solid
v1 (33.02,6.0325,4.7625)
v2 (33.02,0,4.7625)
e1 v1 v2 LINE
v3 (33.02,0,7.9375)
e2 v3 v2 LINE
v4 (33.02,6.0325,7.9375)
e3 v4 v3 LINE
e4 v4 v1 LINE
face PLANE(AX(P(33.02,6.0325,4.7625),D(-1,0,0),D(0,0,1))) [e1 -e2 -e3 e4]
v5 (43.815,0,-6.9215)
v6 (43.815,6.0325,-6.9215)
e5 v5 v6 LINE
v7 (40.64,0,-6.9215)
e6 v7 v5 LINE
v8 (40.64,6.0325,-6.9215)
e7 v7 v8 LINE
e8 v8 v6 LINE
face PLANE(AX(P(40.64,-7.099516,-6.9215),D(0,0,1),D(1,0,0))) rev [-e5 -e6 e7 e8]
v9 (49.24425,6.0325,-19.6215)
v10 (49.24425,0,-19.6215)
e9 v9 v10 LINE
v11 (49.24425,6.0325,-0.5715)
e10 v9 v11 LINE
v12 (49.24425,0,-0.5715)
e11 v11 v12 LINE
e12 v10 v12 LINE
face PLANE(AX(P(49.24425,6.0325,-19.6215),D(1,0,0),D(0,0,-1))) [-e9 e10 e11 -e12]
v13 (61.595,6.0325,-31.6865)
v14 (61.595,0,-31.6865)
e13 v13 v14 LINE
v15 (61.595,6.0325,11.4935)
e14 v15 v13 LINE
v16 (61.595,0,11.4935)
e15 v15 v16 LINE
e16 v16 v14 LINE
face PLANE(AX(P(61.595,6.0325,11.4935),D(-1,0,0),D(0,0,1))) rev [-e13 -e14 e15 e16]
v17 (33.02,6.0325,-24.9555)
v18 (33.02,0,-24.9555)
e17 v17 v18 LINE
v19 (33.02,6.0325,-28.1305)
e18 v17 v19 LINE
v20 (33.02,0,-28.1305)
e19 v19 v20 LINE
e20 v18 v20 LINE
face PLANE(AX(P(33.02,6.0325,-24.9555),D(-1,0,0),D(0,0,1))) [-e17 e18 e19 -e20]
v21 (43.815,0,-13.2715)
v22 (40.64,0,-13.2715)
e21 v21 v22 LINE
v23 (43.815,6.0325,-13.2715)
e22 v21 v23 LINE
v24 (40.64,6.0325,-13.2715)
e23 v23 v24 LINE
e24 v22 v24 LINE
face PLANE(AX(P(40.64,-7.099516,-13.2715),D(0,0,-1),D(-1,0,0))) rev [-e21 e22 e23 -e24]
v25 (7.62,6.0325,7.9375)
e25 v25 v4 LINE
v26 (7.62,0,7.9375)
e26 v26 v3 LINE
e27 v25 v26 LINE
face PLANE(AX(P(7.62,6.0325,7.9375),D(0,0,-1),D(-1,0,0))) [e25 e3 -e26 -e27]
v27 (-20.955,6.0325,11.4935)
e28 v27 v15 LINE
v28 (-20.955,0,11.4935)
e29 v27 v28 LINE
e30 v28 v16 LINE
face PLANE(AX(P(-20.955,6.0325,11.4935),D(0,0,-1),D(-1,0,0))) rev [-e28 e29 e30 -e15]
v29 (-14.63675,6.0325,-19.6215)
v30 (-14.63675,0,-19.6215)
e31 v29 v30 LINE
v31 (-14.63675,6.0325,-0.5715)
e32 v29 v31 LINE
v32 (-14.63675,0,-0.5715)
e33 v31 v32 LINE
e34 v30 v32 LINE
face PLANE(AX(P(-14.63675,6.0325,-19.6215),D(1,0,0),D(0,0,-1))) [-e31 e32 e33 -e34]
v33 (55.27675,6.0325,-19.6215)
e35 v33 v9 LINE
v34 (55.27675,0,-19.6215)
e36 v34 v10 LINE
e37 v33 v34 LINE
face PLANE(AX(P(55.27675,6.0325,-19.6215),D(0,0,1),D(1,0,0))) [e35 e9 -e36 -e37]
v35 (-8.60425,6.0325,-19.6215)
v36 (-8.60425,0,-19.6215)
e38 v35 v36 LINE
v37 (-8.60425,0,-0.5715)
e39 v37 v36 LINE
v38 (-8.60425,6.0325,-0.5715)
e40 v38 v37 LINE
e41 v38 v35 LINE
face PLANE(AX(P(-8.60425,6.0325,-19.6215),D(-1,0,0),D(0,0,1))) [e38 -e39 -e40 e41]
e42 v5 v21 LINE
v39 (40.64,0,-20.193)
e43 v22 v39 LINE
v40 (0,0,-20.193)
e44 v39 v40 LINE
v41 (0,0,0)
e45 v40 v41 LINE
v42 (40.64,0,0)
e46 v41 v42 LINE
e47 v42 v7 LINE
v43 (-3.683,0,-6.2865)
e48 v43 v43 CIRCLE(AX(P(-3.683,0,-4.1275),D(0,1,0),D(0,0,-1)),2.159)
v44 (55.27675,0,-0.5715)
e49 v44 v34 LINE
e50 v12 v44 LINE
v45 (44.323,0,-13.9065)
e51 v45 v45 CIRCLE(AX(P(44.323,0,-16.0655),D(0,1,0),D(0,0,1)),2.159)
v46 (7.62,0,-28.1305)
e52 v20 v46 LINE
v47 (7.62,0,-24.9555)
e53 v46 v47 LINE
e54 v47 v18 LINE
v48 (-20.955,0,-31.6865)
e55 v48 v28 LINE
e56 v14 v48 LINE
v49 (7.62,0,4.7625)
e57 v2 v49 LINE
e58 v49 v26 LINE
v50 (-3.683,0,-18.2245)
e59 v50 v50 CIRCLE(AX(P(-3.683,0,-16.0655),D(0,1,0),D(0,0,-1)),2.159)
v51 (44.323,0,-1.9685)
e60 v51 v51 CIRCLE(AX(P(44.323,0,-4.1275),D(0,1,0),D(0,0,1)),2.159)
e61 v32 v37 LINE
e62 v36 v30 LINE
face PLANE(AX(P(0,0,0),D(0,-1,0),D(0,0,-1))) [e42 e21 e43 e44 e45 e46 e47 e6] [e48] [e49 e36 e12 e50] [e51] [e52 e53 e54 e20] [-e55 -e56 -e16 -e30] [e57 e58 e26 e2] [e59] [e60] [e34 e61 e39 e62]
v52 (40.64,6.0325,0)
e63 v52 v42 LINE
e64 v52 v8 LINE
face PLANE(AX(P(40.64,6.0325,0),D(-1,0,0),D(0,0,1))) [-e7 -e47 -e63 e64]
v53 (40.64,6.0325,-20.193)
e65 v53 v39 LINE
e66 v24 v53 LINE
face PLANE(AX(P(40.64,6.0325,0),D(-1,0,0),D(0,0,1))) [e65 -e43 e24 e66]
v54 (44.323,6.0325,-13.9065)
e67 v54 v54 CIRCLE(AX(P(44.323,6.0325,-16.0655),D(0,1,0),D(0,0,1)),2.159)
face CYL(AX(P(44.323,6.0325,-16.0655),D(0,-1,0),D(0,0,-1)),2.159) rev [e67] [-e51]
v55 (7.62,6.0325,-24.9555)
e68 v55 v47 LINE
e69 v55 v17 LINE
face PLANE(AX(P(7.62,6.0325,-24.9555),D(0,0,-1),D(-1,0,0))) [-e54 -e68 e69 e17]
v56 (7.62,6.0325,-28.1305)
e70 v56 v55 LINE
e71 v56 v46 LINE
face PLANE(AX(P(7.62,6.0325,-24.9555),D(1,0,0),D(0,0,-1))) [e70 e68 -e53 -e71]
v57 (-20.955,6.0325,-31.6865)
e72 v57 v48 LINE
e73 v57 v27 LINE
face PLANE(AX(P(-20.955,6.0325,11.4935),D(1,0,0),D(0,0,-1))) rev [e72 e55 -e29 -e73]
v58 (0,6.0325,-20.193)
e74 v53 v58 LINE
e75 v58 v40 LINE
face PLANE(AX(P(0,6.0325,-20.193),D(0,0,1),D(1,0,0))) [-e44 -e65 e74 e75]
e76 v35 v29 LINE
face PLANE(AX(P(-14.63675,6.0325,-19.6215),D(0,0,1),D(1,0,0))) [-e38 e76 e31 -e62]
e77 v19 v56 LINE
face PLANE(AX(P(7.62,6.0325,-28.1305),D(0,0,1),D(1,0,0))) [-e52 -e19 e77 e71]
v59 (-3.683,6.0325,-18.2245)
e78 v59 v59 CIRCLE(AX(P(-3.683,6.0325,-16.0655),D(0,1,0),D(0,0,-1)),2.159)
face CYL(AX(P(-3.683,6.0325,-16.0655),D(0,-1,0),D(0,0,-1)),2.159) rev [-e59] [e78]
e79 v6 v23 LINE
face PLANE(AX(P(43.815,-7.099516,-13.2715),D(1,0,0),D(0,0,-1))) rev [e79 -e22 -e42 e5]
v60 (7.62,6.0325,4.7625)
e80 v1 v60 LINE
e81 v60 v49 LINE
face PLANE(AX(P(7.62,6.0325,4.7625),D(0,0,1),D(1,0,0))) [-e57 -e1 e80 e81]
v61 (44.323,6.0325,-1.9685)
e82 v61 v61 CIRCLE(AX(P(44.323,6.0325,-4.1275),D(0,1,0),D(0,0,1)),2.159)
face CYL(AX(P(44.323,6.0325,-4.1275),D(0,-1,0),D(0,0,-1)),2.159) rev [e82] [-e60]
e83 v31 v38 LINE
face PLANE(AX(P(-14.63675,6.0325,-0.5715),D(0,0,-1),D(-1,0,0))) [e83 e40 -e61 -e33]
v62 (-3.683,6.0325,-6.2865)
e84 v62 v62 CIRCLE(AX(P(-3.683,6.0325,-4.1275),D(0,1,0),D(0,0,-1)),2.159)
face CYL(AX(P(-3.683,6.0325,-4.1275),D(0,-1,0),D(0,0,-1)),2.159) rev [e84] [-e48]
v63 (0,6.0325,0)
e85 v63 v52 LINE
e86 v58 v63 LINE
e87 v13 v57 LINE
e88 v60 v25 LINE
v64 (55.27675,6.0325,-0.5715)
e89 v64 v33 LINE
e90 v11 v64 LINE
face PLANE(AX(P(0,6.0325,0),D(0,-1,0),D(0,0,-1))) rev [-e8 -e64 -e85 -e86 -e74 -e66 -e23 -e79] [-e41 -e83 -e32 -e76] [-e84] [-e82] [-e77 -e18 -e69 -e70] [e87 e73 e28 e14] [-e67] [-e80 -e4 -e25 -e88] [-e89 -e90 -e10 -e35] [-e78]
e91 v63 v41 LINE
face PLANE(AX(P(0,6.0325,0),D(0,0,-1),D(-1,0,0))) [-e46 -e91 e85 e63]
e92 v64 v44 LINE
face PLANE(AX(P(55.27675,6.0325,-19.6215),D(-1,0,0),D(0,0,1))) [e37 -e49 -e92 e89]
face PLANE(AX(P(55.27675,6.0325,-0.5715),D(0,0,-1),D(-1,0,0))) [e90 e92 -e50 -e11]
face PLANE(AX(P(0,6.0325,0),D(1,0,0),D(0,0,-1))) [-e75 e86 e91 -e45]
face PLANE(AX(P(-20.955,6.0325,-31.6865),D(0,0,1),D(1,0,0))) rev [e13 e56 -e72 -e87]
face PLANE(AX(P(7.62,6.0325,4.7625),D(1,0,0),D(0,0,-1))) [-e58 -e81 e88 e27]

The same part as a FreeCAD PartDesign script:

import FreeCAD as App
import Part
import Sketcher

V = App.Vector
Q = App.Units.Quantity

doc = App.newDocument("Part")
params = doc.addObject("Spreadsheet::Sheet", "Params")
for row, (alias, value) in enumerate([
    ("sketch1_diameter", "0.17 in"),
    ("sketch1_width", "1 in"),
    ("sketch1_width2", "1.6 in"),
    ("sketch1_height", "1.7 in"),
    ("sketch1_width3", "3.25 in"),
    ("pad1_length", "0.2375 in"),
    ("sketch2_height", "0.25 in"),
    ("sketch2_width", "0.125 in"),
    ("pocket1_length", "0.2375 in"),
], start=1):
    params.set(f"A{row}", alias)
    params.set(f"B{row}", "=" + value)
    params.setAlias(f"B{row}", alias)

body = doc.addObject("PartDesign::Body", "Body")

# Sketch on XZ plane
sketch1 = body.newObject("Sketcher::SketchObject", "Sketch")
sketch1.AttachmentSupport = (doc.getObject("XZ_Plane"), [""])
sketch1.MapMode = "FlatFace"
sketch1.addGeometry([
    Part.LineSegment(V(-21, -31.7, 0), V(-21, 11.5, 0)),  # 0
    Part.LineSegment(V(-21, 11.5, 0), V(61.6, 11.5, 0)),  # 1
    Part.LineSegment(V(61.6, 11.5, 0), V(61.6, -31.7, 0)),  # 2
    Part.LineSegment(V(61.6, -31.7, 0), V(-21, -31.7, 0)),  # 3
    Part.Circle(V(-3.7, -4.1, 0), V(0, 0, 1), 2.2),  # 4
    Part.LineSegment(V(33, 7.9, 0), V(7.6, 7.9, 0)),  # 5
    Part.LineSegment(V(7.6, 7.9, 0), V(7.6, 4.8, 0)),  # 6
    Part.LineSegment(V(7.6, 4.8, 0), V(33, 4.8, 0)),  # 7
    Part.LineSegment(V(33, 4.8, 0), V(33, 7.9, 0)),  # 8
    Part.Circle(V(44.3, -4.1, 0), V(0, 0, 1), 2.2),  # 9
    Part.LineSegment(V(-8.6, -0.6, 0), V(-14.6, -0.6, 0)),  # 10
    Part.LineSegment(V(-14.6, -0.6, 0), V(-14.6, -19.6, 0)),  # 11
    Part.LineSegment(V(-14.6, -19.6, 0), V(-8.6, -19.6, 0)),  # 12
    Part.LineSegment(V(-8.6, -19.6, 0), V(-8.6, -0.6, 0)),  # 13
    Part.Circle(V(-3.7, -16.1, 0), V(0, 0, 1), 2.2),  # 14
    Part.LineSegment(V(40.6, 0, 0), V(0, 0, 0)),  # 15
    Part.LineSegment(V(0, 0, 0), V(0, -20.2, 0)),  # 16
    Part.LineSegment(V(0, -20.2, 0), V(40.6, -20.2, 0)),  # 17
    Part.LineSegment(V(40.6, -20.2, 0), V(40.6, 0, 0)),  # 18
    Part.LineSegment(V(55.3, -0.6, 0), V(49.2, -0.6, 0)),  # 19
    Part.LineSegment(V(49.2, -0.6, 0), V(49.2, -19.6, 0)),  # 20
    Part.LineSegment(V(49.2, -19.6, 0), V(55.3, -19.6, 0)),  # 21
    Part.LineSegment(V(55.3, -19.6, 0), V(55.3, -0.6, 0)),  # 22
    Part.Circle(V(44.3, -16.1, 0), V(0, 0, 1), 2.2),  # 23
    Part.LineSegment(V(33, -25, 0), V(7.6, -25, 0)),  # 24
    Part.LineSegment(V(7.6, -25, 0), V(7.6, -28.1, 0)),  # 25
    Part.LineSegment(V(7.6, -28.1, 0), V(33, -28.1, 0)),  # 26
    Part.LineSegment(V(33, -28.1, 0), V(33, -25, 0)),  # 27
], False)
sketch1.addConstraint([
    Sketcher.Constraint("Coincident", 0, 2, 1, 1),
    Sketcher.Constraint("Coincident", 1, 2, 2, 1),
    Sketcher.Constraint("Coincident", 2, 2, 3, 1),
    Sketcher.Constraint("Coincident", 3, 2, 0, 1),
    Sketcher.Constraint("Coincident", 5, 2, 6, 1),
    Sketcher.Constraint("Coincident", 6, 2, 7, 1),
    Sketcher.Constraint("Coincident", 7, 2, 8, 1),
    Sketcher.Constraint("Coincident", 8, 2, 5, 1),
    Sketcher.Constraint("Coincident", 10, 2, 11, 1),
    Sketcher.Constraint("Coincident", 11, 2, 12, 1),
    Sketcher.Constraint("Coincident", 12, 2, 13, 1),
    Sketcher.Constraint("Coincident", 13, 2, 10, 1),
    Sketcher.Constraint("Coincident", 15, 2, 16, 1),
    Sketcher.Constraint("Coincident", 16, 2, 17, 1),
    Sketcher.Constraint("Coincident", 17, 2, 18, 1),
    Sketcher.Constraint("Coincident", 18, 2, 15, 1),
    Sketcher.Constraint("Coincident", 19, 2, 20, 1),
    Sketcher.Constraint("Coincident", 20, 2, 21, 1),
    Sketcher.Constraint("Coincident", 21, 2, 22, 1),
    Sketcher.Constraint("Coincident", 22, 2, 19, 1),
    Sketcher.Constraint("Coincident", 24, 2, 25, 1),
    Sketcher.Constraint("Coincident", 25, 2, 26, 1),
    Sketcher.Constraint("Coincident", 26, 2, 27, 1),
    Sketcher.Constraint("Coincident", 27, 2, 24, 1),
    Sketcher.Constraint("Vertical", 0),
    Sketcher.Constraint("Horizontal", 1),
    Sketcher.Constraint("Vertical", 2),
    Sketcher.Constraint("Horizontal", 3),
    Sketcher.Constraint("Horizontal", 5),
    Sketcher.Constraint("Vertical", 6),
    Sketcher.Constraint("Horizontal", 7),
    Sketcher.Constraint("Vertical", 8),
    Sketcher.Constraint("Horizontal", 10),
    Sketcher.Constraint("Vertical", 11),
    Sketcher.Constraint("Horizontal", 12),
    Sketcher.Constraint("Vertical", 13),
    Sketcher.Constraint("Horizontal", 15),
    Sketcher.Constraint("Vertical", 16),
    Sketcher.Constraint("Horizontal", 17),
    Sketcher.Constraint("Vertical", 18),
    Sketcher.Constraint("Horizontal", 19),
    Sketcher.Constraint("Vertical", 20),
    Sketcher.Constraint("Horizontal", 21),
    Sketcher.Constraint("Vertical", 22),
    Sketcher.Constraint("Horizontal", 24),
    Sketcher.Constraint("Vertical", 25),
    Sketcher.Constraint("Horizontal", 26),
    Sketcher.Constraint("Vertical", 27),
    Sketcher.Constraint("Coincident", 15, 2, -1, 1),
    Sketcher.Constraint("Equal", 4, 9),
    Sketcher.Constraint("Equal", 9, 14),
    Sketcher.Constraint("Equal", 14, 23),
    Sketcher.Constraint("Horizontal", 4, 3, 9, 3),
    Sketcher.Constraint("Horizontal", 14, 3, 23, 3),
    Sketcher.Constraint("Horizontal", 13, 2, 19, 2),
    Sketcher.Constraint("Horizontal", 12, 2, 20, 2),
    Sketcher.Constraint("Vertical", 4, 3, 14, 3),
    Sketcher.Constraint("Vertical", 9, 3, 23, 3),
    Sketcher.Constraint("Vertical", 6, 2, 24, 2),
    Sketcher.Constraint("Vertical", 8, 2, 26, 2),
    Sketcher.Constraint("Equal", 12, 19),
    Sketcher.Constraint("Equal", 8, 25),
    Sketcher.Constraint("Diameter", 4, Q("0.17 in")),
    Sketcher.Constraint("DistanceX", 5, 2, 5, 1, Q("1 in")),
    Sketcher.Constraint("DistanceX", 15, 2, 15, 1, Q("1.6 in")),
    Sketcher.Constraint("DistanceY", 0, 1, 0, 2, Q("1.7 in")),
    Sketcher.Constraint("DistanceX", 1, 1, 1, 2, Q("3.25 in")),
    Sketcher.Constraint("DistanceY", 11, 2, 11, 1, Q("0.75 in")),
    Sketcher.Constraint("DistanceX", -1, 1, 5, 2, Q("0.3 in")),
    Sketcher.Constraint("DistanceY", 6, 2, 6, 1, Q("0.125 in")),
    Sketcher.Constraint("DistanceY", 16, 2, 16, 1, Q("0.795 in")),
    Sketcher.Constraint("DistanceX", 4, 3, 9, 3, Q("1.89 in")),
    Sketcher.Constraint("DistanceY", 14, 3, 4, 3, Q("0.47 in")),
    Sketcher.Constraint("DistanceX", 0, 2, 4, 3, Q("0.68 in")),
    Sketcher.Constraint("DistanceY", 5, 2, 0, 2, Q("0.14 in")),
    Sketcher.Constraint("DistanceY", 4, 3, 6, 2, Q("0.35 in")),
    Sketcher.Constraint("DistanceY", 4, 3, 10, 2, Q("0.14 in")),
    Sketcher.Constraint("DistanceY", 24, 2, 14, 3, Q("0.35 in")),
    Sketcher.Constraint("DistanceX", 10, 2, 10, 1, Q("0.2375 in")),
    Sketcher.Constraint("DistanceX", 4, 3, -1, 1, Q("0.145 in")),
    Sketcher.Constraint("DistanceY", -1, 1, 5, 2, Q("0.3125 in")),
    Sketcher.Constraint("DistanceX", 10, 2, -1, 1, Q("14.63675 mm")),
    Sketcher.Constraint("DistanceX", -1, 1, 19, 2, Q("49.24425 mm")),
])
sketch1.setExpression("Constraints[62]", "Params.sketch1_diameter")
sketch1.setExpression("Constraints[63]", "Params.sketch1_width")
sketch1.setExpression("Constraints[64]", "Params.sketch1_width2")
sketch1.setExpression("Constraints[65]", "Params.sketch1_height")
sketch1.setExpression("Constraints[66]", "Params.sketch1_width3")
pad1 = body.newObject("PartDesign::Pad", "Pad")
pad1.Profile = sketch1
pad1.setExpression("Length", "Params.pad1_length")
pad1.Reversed = True

# Sketch on XZ plane
sketch2 = body.newObject("Sketcher::SketchObject", "Sketch001")
sketch2.AttachmentSupport = (doc.getObject("XZ_Plane"), [""])
sketch2.MapMode = "FlatFace"
sketch2.AttachmentOffset = App.Placement(V(0, 0, -0.2375 * 25.4), App.Rotation())
sketch2.addGeometry([
    Part.LineSegment(V(40.6, -13.3, 0), V(40.6, -6.9, 0)),
    Part.LineSegment(V(40.6, -6.9, 0), V(43.8, -6.9, 0)),
    Part.LineSegment(V(43.8, -6.9, 0), V(43.8, -13.3, 0)),
    Part.LineSegment(V(43.8, -13.3, 0), V(40.6, -13.3, 0)),
], False)
sketch2.addConstraint([
    Sketcher.Constraint("Coincident", 0, 2, 1, 1),
    Sketcher.Constraint("Coincident", 1, 2, 2, 1),
    Sketcher.Constraint("Coincident", 2, 2, 3, 1),
    Sketcher.Constraint("Coincident", 3, 2, 0, 1),
    Sketcher.Constraint("Vertical", 0),
    Sketcher.Constraint("Horizontal", 1),
    Sketcher.Constraint("Vertical", 2),
    Sketcher.Constraint("Horizontal", 3),
    Sketcher.Constraint("DistanceY", 0, 1, 0, 2, Q("0.25 in")),
    Sketcher.Constraint("DistanceX", -1, 1, 0, 2, Q("1.6 in")),
    Sketcher.Constraint("DistanceX", 1, 1, 1, 2, Q("0.125 in")),
    Sketcher.Constraint("DistanceY", 0, 2, -1, 1, Q("0.2725 in")),
])
sketch2.setExpression("Constraints[8]", "Params.sketch2_height")
sketch2.setExpression("Constraints[10]", "Params.sketch2_width")
pocket1 = body.newObject("PartDesign::Pocket", "Pocket")
pocket1.Profile = sketch2
pocket1.setExpression("Length", "Params.pocket1_length")
pocket1.Reversed = True

doc.recompute()
